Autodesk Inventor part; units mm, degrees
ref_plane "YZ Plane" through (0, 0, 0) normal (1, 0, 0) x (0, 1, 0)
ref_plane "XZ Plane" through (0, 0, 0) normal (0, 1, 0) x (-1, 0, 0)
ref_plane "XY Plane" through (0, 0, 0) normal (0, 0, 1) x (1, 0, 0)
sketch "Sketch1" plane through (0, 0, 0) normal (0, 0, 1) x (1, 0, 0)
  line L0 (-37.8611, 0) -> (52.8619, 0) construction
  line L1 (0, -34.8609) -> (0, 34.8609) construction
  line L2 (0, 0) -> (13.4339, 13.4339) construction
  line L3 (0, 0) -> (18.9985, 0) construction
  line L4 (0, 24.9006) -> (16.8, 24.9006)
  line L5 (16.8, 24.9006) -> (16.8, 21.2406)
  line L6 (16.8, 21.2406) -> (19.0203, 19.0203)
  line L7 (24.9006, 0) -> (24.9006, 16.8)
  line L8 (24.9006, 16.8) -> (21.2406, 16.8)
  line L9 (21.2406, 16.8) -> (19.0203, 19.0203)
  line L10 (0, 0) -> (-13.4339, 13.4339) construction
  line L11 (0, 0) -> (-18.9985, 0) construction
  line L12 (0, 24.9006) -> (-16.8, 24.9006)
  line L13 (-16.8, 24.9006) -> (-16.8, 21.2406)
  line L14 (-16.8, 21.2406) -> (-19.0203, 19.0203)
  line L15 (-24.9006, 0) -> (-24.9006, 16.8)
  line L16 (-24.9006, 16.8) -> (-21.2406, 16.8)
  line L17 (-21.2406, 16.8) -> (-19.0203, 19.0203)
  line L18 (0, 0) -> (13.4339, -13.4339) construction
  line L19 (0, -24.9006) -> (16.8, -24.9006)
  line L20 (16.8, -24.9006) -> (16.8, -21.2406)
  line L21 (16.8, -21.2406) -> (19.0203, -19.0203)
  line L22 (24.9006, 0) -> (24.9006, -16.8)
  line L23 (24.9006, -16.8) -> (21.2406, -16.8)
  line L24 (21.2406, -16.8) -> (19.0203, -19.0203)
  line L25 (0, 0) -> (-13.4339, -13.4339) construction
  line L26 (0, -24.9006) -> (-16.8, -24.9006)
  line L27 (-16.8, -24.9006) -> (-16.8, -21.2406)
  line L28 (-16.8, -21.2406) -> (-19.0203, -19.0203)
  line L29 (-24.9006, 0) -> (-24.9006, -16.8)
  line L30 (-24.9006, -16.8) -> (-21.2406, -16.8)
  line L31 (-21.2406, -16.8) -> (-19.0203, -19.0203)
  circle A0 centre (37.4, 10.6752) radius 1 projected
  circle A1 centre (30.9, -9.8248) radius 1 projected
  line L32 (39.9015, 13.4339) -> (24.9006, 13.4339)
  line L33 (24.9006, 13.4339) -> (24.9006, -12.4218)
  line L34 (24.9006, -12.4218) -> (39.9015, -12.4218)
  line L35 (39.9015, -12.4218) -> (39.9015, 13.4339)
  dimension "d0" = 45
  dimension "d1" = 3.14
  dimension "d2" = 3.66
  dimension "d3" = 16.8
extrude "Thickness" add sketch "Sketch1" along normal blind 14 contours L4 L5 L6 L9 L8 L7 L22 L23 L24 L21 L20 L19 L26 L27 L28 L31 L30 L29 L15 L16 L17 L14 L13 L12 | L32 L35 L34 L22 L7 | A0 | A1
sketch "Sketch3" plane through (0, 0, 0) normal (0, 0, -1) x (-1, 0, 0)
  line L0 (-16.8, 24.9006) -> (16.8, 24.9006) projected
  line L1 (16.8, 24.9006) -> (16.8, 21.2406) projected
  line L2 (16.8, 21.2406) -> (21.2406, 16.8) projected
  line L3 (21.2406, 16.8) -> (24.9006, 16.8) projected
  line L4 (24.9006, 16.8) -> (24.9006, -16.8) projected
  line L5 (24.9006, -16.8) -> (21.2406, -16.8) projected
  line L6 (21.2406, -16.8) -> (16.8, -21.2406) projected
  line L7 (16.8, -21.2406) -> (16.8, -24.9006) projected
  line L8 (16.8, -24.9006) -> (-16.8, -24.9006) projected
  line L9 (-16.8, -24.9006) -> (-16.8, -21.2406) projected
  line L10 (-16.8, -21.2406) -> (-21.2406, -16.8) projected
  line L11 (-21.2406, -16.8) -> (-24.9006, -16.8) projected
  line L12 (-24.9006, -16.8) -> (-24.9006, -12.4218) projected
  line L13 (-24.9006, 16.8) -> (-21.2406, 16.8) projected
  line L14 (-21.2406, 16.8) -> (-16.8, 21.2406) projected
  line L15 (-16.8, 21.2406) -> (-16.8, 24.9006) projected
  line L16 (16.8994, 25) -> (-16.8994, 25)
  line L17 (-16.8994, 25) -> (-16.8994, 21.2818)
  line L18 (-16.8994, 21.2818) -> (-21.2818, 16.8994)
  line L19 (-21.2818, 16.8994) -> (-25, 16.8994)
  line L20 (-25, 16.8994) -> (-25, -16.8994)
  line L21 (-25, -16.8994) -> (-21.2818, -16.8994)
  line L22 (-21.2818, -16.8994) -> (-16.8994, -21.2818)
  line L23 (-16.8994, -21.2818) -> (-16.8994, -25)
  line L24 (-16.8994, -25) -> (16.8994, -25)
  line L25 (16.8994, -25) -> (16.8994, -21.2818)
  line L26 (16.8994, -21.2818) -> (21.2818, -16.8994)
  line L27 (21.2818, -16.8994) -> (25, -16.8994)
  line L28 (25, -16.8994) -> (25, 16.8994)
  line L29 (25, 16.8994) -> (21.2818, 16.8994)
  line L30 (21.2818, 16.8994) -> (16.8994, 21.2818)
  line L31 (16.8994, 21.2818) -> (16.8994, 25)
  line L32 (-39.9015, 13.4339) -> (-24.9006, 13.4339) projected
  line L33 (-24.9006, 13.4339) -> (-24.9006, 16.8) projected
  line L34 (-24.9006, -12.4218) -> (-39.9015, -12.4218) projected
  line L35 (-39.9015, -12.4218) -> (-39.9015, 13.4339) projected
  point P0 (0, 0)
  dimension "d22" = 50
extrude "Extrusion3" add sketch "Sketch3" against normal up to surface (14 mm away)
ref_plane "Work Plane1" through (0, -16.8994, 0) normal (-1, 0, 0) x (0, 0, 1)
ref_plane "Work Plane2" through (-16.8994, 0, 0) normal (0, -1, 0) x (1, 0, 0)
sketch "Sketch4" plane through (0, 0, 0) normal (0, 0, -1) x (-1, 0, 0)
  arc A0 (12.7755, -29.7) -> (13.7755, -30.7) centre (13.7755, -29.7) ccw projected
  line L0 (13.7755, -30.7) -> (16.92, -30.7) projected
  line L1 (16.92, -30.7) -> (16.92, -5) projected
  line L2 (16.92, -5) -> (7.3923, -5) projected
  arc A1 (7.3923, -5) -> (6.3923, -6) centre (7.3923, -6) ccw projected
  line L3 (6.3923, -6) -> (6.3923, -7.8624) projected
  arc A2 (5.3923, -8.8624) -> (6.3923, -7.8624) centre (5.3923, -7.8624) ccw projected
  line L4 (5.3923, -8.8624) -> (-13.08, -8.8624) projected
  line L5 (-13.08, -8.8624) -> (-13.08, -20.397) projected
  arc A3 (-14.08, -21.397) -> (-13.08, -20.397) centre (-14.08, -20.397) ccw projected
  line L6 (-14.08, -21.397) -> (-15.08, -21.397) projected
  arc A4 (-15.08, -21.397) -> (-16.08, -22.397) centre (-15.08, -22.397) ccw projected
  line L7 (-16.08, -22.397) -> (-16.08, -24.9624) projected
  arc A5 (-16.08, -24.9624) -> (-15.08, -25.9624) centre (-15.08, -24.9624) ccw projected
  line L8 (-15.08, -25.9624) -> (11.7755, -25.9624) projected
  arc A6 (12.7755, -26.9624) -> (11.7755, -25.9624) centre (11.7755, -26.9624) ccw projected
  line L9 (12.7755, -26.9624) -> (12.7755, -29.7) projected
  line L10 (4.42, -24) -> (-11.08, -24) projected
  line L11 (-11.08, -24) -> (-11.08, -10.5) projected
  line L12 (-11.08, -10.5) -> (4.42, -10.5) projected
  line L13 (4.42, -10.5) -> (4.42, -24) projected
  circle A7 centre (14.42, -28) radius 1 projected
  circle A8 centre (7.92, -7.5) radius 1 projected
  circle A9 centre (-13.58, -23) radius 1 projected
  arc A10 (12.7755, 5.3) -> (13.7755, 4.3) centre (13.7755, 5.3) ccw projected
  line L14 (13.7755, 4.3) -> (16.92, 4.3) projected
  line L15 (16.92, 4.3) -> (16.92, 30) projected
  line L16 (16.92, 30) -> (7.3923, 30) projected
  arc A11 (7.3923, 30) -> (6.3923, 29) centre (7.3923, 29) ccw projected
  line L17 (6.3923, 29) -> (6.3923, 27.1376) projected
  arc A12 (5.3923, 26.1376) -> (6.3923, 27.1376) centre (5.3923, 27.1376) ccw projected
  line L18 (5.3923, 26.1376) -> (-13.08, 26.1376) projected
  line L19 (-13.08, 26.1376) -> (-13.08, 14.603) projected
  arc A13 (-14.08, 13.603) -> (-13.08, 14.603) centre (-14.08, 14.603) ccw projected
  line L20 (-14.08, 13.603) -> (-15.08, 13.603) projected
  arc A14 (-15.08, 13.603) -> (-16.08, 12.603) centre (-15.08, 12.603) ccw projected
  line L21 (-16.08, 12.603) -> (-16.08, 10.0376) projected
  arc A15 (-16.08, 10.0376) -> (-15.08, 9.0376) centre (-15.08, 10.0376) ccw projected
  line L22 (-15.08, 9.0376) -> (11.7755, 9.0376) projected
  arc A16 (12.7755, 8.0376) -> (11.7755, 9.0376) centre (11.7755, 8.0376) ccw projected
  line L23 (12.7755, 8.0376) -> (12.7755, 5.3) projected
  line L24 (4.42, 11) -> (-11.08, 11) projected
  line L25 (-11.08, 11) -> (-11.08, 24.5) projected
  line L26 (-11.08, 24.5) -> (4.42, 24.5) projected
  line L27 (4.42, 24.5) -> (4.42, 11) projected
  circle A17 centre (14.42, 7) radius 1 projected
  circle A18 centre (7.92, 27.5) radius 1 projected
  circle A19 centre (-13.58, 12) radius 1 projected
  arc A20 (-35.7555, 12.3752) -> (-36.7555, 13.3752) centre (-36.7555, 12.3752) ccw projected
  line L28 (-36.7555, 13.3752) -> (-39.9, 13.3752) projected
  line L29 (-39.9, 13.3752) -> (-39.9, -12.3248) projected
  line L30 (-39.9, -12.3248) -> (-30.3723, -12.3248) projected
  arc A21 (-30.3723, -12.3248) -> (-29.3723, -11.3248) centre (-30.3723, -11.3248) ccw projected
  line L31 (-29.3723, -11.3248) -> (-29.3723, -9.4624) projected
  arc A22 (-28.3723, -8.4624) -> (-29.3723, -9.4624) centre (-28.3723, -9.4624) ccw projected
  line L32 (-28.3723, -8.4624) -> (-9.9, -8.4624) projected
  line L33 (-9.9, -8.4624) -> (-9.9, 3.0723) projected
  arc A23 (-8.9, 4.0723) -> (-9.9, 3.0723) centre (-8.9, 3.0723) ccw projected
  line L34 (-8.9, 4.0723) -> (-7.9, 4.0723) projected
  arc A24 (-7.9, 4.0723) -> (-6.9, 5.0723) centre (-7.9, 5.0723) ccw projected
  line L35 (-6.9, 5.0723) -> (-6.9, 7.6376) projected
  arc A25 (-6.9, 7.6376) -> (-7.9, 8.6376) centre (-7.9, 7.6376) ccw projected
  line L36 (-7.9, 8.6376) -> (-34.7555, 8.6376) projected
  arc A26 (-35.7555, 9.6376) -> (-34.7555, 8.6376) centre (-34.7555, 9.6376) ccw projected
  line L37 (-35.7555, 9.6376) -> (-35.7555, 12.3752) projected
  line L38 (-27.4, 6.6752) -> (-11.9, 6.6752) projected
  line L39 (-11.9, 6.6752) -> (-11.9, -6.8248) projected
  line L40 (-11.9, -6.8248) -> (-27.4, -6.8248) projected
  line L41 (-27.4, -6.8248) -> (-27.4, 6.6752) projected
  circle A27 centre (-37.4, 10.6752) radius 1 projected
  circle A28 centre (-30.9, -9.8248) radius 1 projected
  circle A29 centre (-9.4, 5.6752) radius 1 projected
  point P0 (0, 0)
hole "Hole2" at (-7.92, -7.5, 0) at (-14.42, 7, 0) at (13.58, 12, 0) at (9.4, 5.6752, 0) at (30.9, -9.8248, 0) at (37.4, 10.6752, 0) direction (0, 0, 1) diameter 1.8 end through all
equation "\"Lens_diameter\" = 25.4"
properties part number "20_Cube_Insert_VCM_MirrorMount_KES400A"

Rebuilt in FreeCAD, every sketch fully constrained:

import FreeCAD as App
import Part
import Sketcher
from FreeCAD import Vector

doc = App.newDocument("Part")
params = doc.addObject("Spreadsheet::Sheet", "Params")
for row, (alias, value) in enumerate([
    ("sketch1_width", "3.66 mm"),
    ("sketch1_length", "6.28 mm"),
    ("pad1_length", "14 mm"),
    ("pad2_length", "14 mm"),
    ("sketch3_diameter", "1.8 mm"),
    ("hole_diameter", "1.8 mm"),
], start=1):
    params.set(f"A{row}", alias)
    params.set(f"B{row}", "=" + value)
    params.setAlias(f"B{row}", alias)

body = doc.addObject("PartDesign::Body", "Body")

sketch1 = body.newObject("Sketcher::SketchObject", "Sketch")
sketch1.AttachmentSupport = (doc.getObject("XY_Plane"), [""])
sketch1.MapMode = "FlatFace"
sketch1.addGeometry(Part.LineSegment(Vector(16.8, 24.9, 0), Vector(-16.8, 24.9, 0)), False)
sketch1.addGeometry(Part.LineSegment(Vector(-16.8, 24.9, 0), Vector(-16.8, 21.2, 0)), False)
sketch1.addGeometry(Part.LineSegment(Vector(-16.8, 21.2, 0), Vector(-21.2, 16.8, 0)), False)
sketch1.addGeometry(Part.LineSegment(Vector(-21.2, 16.8, 0), Vector(-24.9, 16.8, 0)), False)
sketch1.addGeometry(Part.LineSegment(Vector(-24.9, 16.8, 0), Vector(-24.9, -16.8, 0)), False)
sketch1.addGeometry(Part.LineSegment(Vector(-24.9, -16.8, 0), Vector(-21.2, -16.8, 0)), False)
sketch1.addGeometry(Part.LineSegment(Vector(-21.2, -16.8, 0), Vector(-16.8, -21.2, 0)), False)
sketch1.addGeometry(Part.LineSegment(Vector(-16.8, -21.2, 0), Vector(-16.8, -24.9, 0)), False)
sketch1.addGeometry(Part.LineSegment(Vector(-16.8, -24.9, 0), Vector(16.8, -24.9, 0)), False)
sketch1.addGeometry(Part.LineSegment(Vector(16.8, -24.9, 0), Vector(16.8, -21.2, 0)), False)
sketch1.addGeometry(Part.LineSegment(Vector(16.8, -21.2, 0), Vector(21.2, -16.8, 0)), False)
sketch1.addGeometry(Part.LineSegment(Vector(21.2, -16.8, 0), Vector(24.9, -16.8, 0)), False)
sketch1.addGeometry(Part.LineSegment(Vector(24.9, -16.8, 0), Vector(24.9, -12.4, 0)), False)
sketch1.addGeometry(Part.LineSegment(Vector(24.9, -12.4, 0), Vector(39.9, -12.4, 0)), False)
sketch1.addGeometry(Part.LineSegment(Vector(39.9, -12.4, 0), Vector(39.9, 13.4, 0)), False)
sketch1.addGeometry(Part.LineSegment(Vector(39.9, 13.4, 0), Vector(24.9, 13.4, 0)), False)
sketch1.addGeometry(Part.LineSegment(Vector(24.9, 13.4, 0), Vector(24.9, 16.8, 0)), False)
sketch1.addGeometry(Part.LineSegment(Vector(24.9, 16.8, 0), Vector(21.2, 16.8, 0)), False)
sketch1.addGeometry(Part.LineSegment(Vector(21.2, 16.8, 0), Vector(16.8, 21.2, 0)), False)
sketch1.addGeometry(Part.LineSegment(Vector(16.8, 21.2, 0), Vector(16.8, 24.9, 0)), False)
sketch1.addConstraint(Sketcher.Constraint("Coincident", 0, 2, 1, 1))
sketch1.addConstraint(Sketcher.Constraint("Coincident", 1, 2, 2, 1))
sketch1.addConstraint(Sketcher.Constraint("Coincident", 2, 2, 3, 1))
sketch1.addConstraint(Sketcher.Constraint("Coincident", 3, 2, 4, 1))
sketch1.addConstraint(Sketcher.Constraint("Coincident", 4, 2, 5, 1))
sketch1.addConstraint(Sketcher.Constraint("Coincident", 5, 2, 6, 1))
sketch1.addConstraint(Sketcher.Constraint("Coincident", 6, 2, 7, 1))
sketch1.addConstraint(Sketcher.Constraint("Coincident", 7, 2, 8, 1))
sketch1.addConstraint(Sketcher.Constraint("Coincident", 8, 2, 9, 1))
sketch1.addConstraint(Sketcher.Constraint("Coincident", 9, 2, 10, 1))
sketch1.addConstraint(Sketcher.Constraint("Coincident", 10, 2, 11, 1))
sketch1.addConstraint(Sketcher.Constraint("Coincident", 11, 2, 12, 1))
sketch1.addConstraint(Sketcher.Constraint("Coincident", 12, 2, 13, 1))
sketch1.addConstraint(Sketcher.Constraint("Coincident", 13, 2, 14, 1))
sketch1.addConstraint(Sketcher.Constraint("Coincident", 14, 2, 15, 1))
sketch1.addConstraint(Sketcher.Constraint("Coincident", 15, 2, 16, 1))
sketch1.addConstraint(Sketcher.Constraint("Coincident", 16, 2, 17, 1))
sketch1.addConstraint(Sketcher.Constraint("Coincident", 17, 2, 18, 1))
sketch1.addConstraint(Sketcher.Constraint("Coincident", 18, 2, 19, 1))
sketch1.addConstraint(Sketcher.Constraint("Coincident", 19, 2, 0, 1))
sketch1.addConstraint(Sketcher.Constraint("Horizontal", 0))
sketch1.addConstraint(Sketcher.Constraint("Vertical", 1))
sketch1.addConstraint(Sketcher.Constraint("Horizontal", 3))
sketch1.addConstraint(Sketcher.Constraint("Vertical", 4))
sketch1.addConstraint(Sketcher.Constraint("Horizontal", 5))
sketch1.addConstraint(Sketcher.Constraint("Vertical", 7))
sketch1.addConstraint(Sketcher.Constraint("Horizontal", 8))
sketch1.addConstraint(Sketcher.Constraint("Vertical", 9))
sketch1.addConstraint(Sketcher.Constraint("Horizontal", 11))
sketch1.addConstraint(Sketcher.Constraint("Vertical", 12))
sketch1.addConstraint(Sketcher.Constraint("Horizontal", 13))
sketch1.addConstraint(Sketcher.Constraint("Vertical", 14))
sketch1.addConstraint(Sketcher.Constraint("Horizontal", 15))
sketch1.addConstraint(Sketcher.Constraint("Vertical", 16))
sketch1.addConstraint(Sketcher.Constraint("Horizontal", 17))
sketch1.addConstraint(Sketcher.Constraint("Vertical", 19))
sketch1.addConstraint(Sketcher.Constraint("Symmetric", 0, 2, 8, 2, -1, 1))
sketch1.addConstraint(Sketcher.Constraint("Symmetric", 2, 2, 10, 2, -1, 1))
sketch1.addConstraint(Sketcher.Constraint("Symmetric", 4, 2, 16, 2, -1, 1))
sketch1.addConstraint(Sketcher.Constraint("Symmetric", 6, 2, 18, 2, -1, 1))
sketch1.addConstraint(Sketcher.Constraint("Symmetric", 6, 2, 9, 2, -2))
sketch1.addConstraint(Sketcher.Constraint("Symmetric", 5, 2, 10, 2, -2))
sketch1.addConstraint(Sketcher.Constraint("Perpendicular", 2, 6))
sketch1.addConstraint(Sketcher.Constraint("Perpendicular", 6, 10))
sketch1.addConstraint(Sketcher.Constraint("Perpendicular", 10, 18))
sketch1.addConstraint(Sketcher.Constraint("Vertical", 12, 2, 15, 2))
sketch1.addConstraint(Sketcher.Constraint("Equal", 17, 1))
sketch1.addConstraint(Sketcher.Constraint("Equal", 8, 4))
sketch1.addConstraint(Sketcher.Constraint("DistanceX", 3, 2, 3, 1, 3.66))
sketch1.addConstraint(Sketcher.Constraint("DistanceX", 0, 2, -1, 1, 16.8))
sketch1.addConstraint(Sketcher.Constraint("Distance", 2, 6.28))
sketch1.addConstraint(Sketcher.Constraint("DistanceX", 13, 1, 13, 2, 15.001))
sketch1.addConstraint(Sketcher.Constraint("DistanceY", 16, 1, 16, 2, 3.366))
sketch1.addConstraint(Sketcher.Constraint("DistanceY", 12, 1, 12, 2, 4.3782))
sketch1.setExpression("Constraints[48]", "Params.sketch1_width")
sketch1.setExpression("Constraints[50]", "Params.sketch1_length")
pad1 = body.newObject("PartDesign::Pad", "Pad")
pad1.Profile = sketch1
pad1.setExpression("Length", "Params.pad1_length")

sketch2 = body.newObject("Sketcher::SketchObject", "Sketch001")
sketch2.AttachmentSupport = (doc.getObject("XY_Plane"), [""])
sketch2.MapMode = "FlatFace"
sketch2.addGeometry(Part.LineSegment(Vector(25, 16.9, 0), Vector(25, 13.4, 0)), False)
sketch2.addGeometry(Part.LineSegment(Vector(25, 13.4, 0), Vector(39.9, 13.4, 0)), False)
sketch2.addGeometry(Part.LineSegment(Vector(39.9, 13.4, 0), Vector(39.9, -12.4, 0)), False)
sketch2.addGeometry(Part.LineSegment(Vector(39.9, -12.4, 0), Vector(25, -12.4, 0)), False)
sketch2.addGeometry(Part.LineSegment(Vector(25, -12.4, 0), Vector(25, -16.9, 0)), False)
sketch2.addGeometry(Part.LineSegment(Vector(25, -16.9, 0), Vector(21.3, -16.9, 0)), False)
sketch2.addGeometry(Part.LineSegment(Vector(21.3, -16.9, 0), Vector(16.9, -21.3, 0)), False)
sketch2.addGeometry(Part.LineSegment(Vector(16.9, -21.3, 0), Vector(16.9, -25, 0)), False)
sketch2.addGeometry(Part.LineSegment(Vector(16.9, -25, 0), Vector(-16.9, -25, 0)), False)
sketch2.addGeometry(Part.LineSegment(Vector(-16.9, -25, 0), Vector(-16.9, -21.3, 0)), False)
sketch2.addGeometry(Part.LineSegment(Vector(-16.9, -21.3, 0), Vector(-21.3, -16.9, 0)), False)
sketch2.addGeometry(Part.LineSegment(Vector(-21.3, -16.9, 0), Vector(-25, -16.9, 0)), False)
sketch2.addGeometry(Part.LineSegment(Vector(-25, -16.9, 0), Vector(-25, 16.9, 0)), False)
sketch2.addGeometry(Part.LineSegment(Vector(-25, 16.9, 0), Vector(-21.3, 16.9, 0)), False)
sketch2.addGeometry(Part.LineSegment(Vector(-21.3, 16.9, 0), Vector(-16.9, 21.3, 0)), False)
sketch2.addGeometry(Part.LineSegment(Vector(-16.9, 21.3, 0), Vector(-16.9, 25, 0)), False)
sketch2.addGeometry(Part.LineSegment(Vector(-16.9, 25, 0), Vector(16.9, 25, 0)), False)
sketch2.addGeometry(Part.LineSegment(Vector(16.9, 25, 0), Vector(16.9, 21.3, 0)), False)
sketch2.addGeometry(Part.LineSegment(Vector(16.9, 21.3, 0), Vector(21.3, 16.9, 0)), False)
sketch2.addGeometry(Part.LineSegment(Vector(21.3, 16.9, 0), Vector(25, 16.9, 0)), False)
sketch2.addConstraint(Sketcher.Constraint("Coincident", 0, 2, 1, 1))
sketch2.addConstraint(Sketcher.Constraint("Coincident", 1, 2, 2, 1))
sketch2.addConstraint(Sketcher.Constraint("Coincident", 2, 2, 3, 1))
sketch2.addConstraint(Sketcher.Constraint("Coincident", 3, 2, 4, 1))
sketch2.addConstraint(Sketcher.Constraint("Coincident", 4, 2, 5, 1))
sketch2.addConstraint(Sketcher.Constraint("Coincident", 5, 2, 6, 1))
sketch2.addConstraint(Sketcher.Constraint("Coincident", 6, 2, 7, 1))
sketch2.addConstraint(Sketcher.Constraint("Coincident", 7, 2, 8, 1))
sketch2.addConstraint(Sketcher.Constraint("Coincident", 8, 2, 9, 1))
sketch2.addConstraint(Sketcher.Constraint("Coincident", 9, 2, 10, 1))
sketch2.addConstraint(Sketcher.Constraint("Coincident", 10, 2, 11, 1))
sketch2.addConstraint(Sketcher.Constraint("Coincident", 11, 2, 12, 1))
sketch2.addConstraint(Sketcher.Constraint("Coincident", 12, 2, 13, 1))
sketch2.addConstraint(Sketcher.Constraint("Coincident", 13, 2, 14, 1))
sketch2.addConstraint(Sketcher.Constraint("Coincident", 14, 2, 15, 1))
sketch2.addConstraint(Sketcher.Constraint("Coincident", 15, 2, 16, 1))
sketch2.addConstraint(Sketcher.Constraint("Coincident", 16, 2, 17, 1))
sketch2.addConstraint(Sketcher.Constraint("Coincident", 17, 2, 18, 1))
sketch2.addConstraint(Sketcher.Constraint("Coincident", 18, 2, 19, 1))
sketch2.addConstraint(Sketcher.Constraint("Coincident", 19, 2, 0, 1))
sketch2.addConstraint(Sketcher.Constraint("Vertical", 0))
sketch2.addConstraint(Sketcher.Constraint("Horizontal", 1))
sketch2.addConstraint(Sketcher.Constraint("Vertical", 2))
sketch2.addConstraint(Sketcher.Constraint("Horizontal", 3))
sketch2.addConstraint(Sketcher.Constraint("Vertical", 4))
sketch2.addConstraint(Sketcher.Constraint("Horizontal", 5))
sketch2.addConstraint(Sketcher.Constraint("Vertical", 7))
sketch2.addConstraint(Sketcher.Constraint("Horizontal", 8))
sketch2.addConstraint(Sketcher.Constraint("Vertical", 9))
sketch2.addConstraint(Sketcher.Constraint("Horizontal", 11))
sketch2.addConstraint(Sketcher.Constraint("Vertical", 12))
sketch2.addConstraint(Sketcher.Constraint("Horizontal", 13))
sketch2.addConstraint(Sketcher.Constraint("Vertical", 15))
sketch2.addConstraint(Sketcher.Constraint("Horizontal", 16))
sketch2.addConstraint(Sketcher.Constraint("Vertical", 17))
sketch2.addConstraint(Sketcher.Constraint("Horizontal", 19))
sketch2.addConstraint(Sketcher.Constraint("Symmetric", 4, 2, 12, 2, -1, 1))
sketch2.addConstraint(Sketcher.Constraint("Symmetric", 6, 2, 14, 2, -1, 1))
sketch2.addConstraint(Sketcher.Constraint("Symmetric", 8, 2, 16, 2, -1, 1))
sketch2.addConstraint(Sketcher.Constraint("Symmetric", 10, 2, 18, 2, -1, 1))
sketch2.addConstraint(Sketcher.Constraint("Symmetric", 6, 2, 9, 2, -2))
sketch2.addConstraint(Sketcher.Constraint("Symmetric", 5, 2, 10, 2, -2))
sketch2.addConstraint(Sketcher.Constraint("Perpendicular", 6, 10))
sketch2.addConstraint(Sketcher.Constraint("Perpendicular", 10, 14))
sketch2.addConstraint(Sketcher.Constraint("Perpendicular", 14, 18))
sketch2.addConstraint(Sketcher.Constraint("Vertical", 0, 2, 3, 2))
sketch2.addConstraint(Sketcher.Constraint("Equal", 19, 7))
sketch2.addConstraint(Sketcher.Constraint("Equal", 16, 12))
sketch2.addConstraint(Sketcher.Constraint("DistanceX", 12, 2, 0, 2, 50.0))
sketch2.addConstraint(Sketcher.Constraint("DistanceY", 6, 2, 3, 2, 8.86))
sketch2.addConstraint(Sketcher.Constraint("DistanceX", 1, 1, 1, 2, 14.9015))
sketch2.addConstraint(Sketcher.Constraint("DistanceX", 5, 2, 5, 1, 3.7182))
sketch2.addConstraint(Sketcher.Constraint("DistanceX", 8, 2, 8, 1, 33.7988))
sketch2.addConstraint(Sketcher.Constraint("DistanceY", 0, 2, 0, 1, 3.4655))
pad2 = body.newObject("PartDesign::Pad", "Pad001")
pad2.Profile = sketch2
pad2.setExpression("Length", "Params.pad2_length")

sketch3 = body.newObject("Sketcher::SketchObject", "Sketch002")
sketch3.AttachmentSupport = (doc.getObject("XY_Plane"), [""])
sketch3.MapMode = "FlatFace"
sketch3.addGeometry(Part.Circle(Vector(-7.9, -7.5, 0), Vector(0, 0, 1), 0.9), False)
sketch3.addGeometry(Part.Circle(Vector(-14.4, 7, 0), Vector(0, 0, 1), 0.9), False)
sketch3.addGeometry(Part.Circle(Vector(13.6, 12, 0), Vector(0, 0, 1), 0.9), False)
sketch3.addGeometry(Part.Circle(Vector(9.4, 5.7, 0), Vector(0, 0, 1), 0.9), False)
sketch3.addGeometry(Part.Circle(Vector(30.9, -9.8, 0), Vector(0, 0, 1), 0.9), False)
sketch3.addGeometry(Part.Circle(Vector(37.4, 10.7, 0), Vector(0, 0, 1), 0.9), False)
sketch3.addConstraint(Sketcher.Constraint("Equal", 0, 1))
sketch3.addConstraint(Sketcher.Constraint("Equal", 1, 2))
sketch3.addConstraint(Sketcher.Constraint("Equal", 2, 3))
sketch3.addConstraint(Sketcher.Constraint("Equal", 3, 4))
sketch3.addConstraint(Sketcher.Constraint("Equal", 4, 5))
sketch3.addConstraint(Sketcher.Constraint("Diameter", 0, 1.8))
sketch3.addConstraint(Sketcher.Constraint("DistanceY", -1, 1, 1, 3, 7.0))
sketch3.addConstraint(Sketcher.Constraint("DistanceY", -1, 1, 2, 3, 12.0))
sketch3.addConstraint(Sketcher.Constraint("DistanceX", 1, 3, 2, 3, 28.0))
sketch3.addConstraint(Sketcher.Constraint("DistanceX", 3, 3, 5, 3, 28.0))
sketch3.addConstraint(Sketcher.Constraint("DistanceY", 3, 3, 5, 3, 5.0))
sketch3.addConstraint(Sketcher.Constraint("DistanceY", 0, 3, -1, 1, 7.5))
sketch3.addConstraint(Sketcher.Constraint("DistanceX", -1, 1, 3, 3, 9.4))
sketch3.addConstraint(Sketcher.Constraint("DistanceX", -1, 1, 4, 3, 30.9))
sketch3.addConstraint(Sketcher.Constraint("DistanceX", 1, 3, 0, 3, 6.5))
sketch3.addConstraint(Sketcher.Constraint("DistanceY", 4, 3, 3, 3, 15.5))
sketch3.addConstraint(Sketcher.Constraint("DistanceX", 0, 3, -1, 1, 7.92))
sketch3.addConstraint(Sketcher.Constraint("DistanceY", -1, 1, 3, 3, 5.6752))
sketch3.setExpression("Constraints[5]", "Params.sketch3_diameter")
doc.recompute()
hole = body.newObject("PartDesign::Hole", "Hole")
hole.Profile = sketch3
hole.ThreadType = "None"
hole.setExpression("Diameter", "Params.hole_diameter")
hole.DepthType = "ThroughAll"
hole.Reversed = True

doc.recompute()
